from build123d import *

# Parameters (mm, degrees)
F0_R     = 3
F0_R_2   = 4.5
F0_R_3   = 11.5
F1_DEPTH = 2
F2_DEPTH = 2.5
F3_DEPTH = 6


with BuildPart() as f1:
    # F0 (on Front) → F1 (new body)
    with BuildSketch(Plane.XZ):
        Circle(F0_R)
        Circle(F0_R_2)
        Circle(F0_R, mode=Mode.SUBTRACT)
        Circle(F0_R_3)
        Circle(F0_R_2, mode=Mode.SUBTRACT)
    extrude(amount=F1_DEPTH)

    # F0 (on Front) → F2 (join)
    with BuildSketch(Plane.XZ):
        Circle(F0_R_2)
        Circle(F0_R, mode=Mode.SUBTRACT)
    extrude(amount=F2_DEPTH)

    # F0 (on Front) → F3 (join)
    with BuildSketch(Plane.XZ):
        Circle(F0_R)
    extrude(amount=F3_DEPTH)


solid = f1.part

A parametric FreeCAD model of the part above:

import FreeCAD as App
import Part
import Sketcher

V = App.Vector

doc = App.newDocument("Part")
body = doc.addObject("PartDesign::Body", "Body")

# Sketch on XZ plane
sketch1 = doc.addObject("Sketcher::SketchObject", "Sketch")
body.addObject(sketch1)
sketch1.AttachmentSupport = (doc.XZ_Plane, [""])
sketch1.MapMode = "FlatFace"
sketch1.addGeometry(Part.Circle(V(0, 0, 0), V(0, 0, 1), 11.5), False)
sketch1.addGeometry(Part.Circle(V(0, 0, 0), V(0, 0, 1), 4.5), False)
sketch1.addConstraint(Sketcher.Constraint("Coincident", 0, 3, -1, 1))
sketch1.addConstraint(Sketcher.Constraint("Coincident", 1, 3, -1, 1))
sketch1.addConstraint(Sketcher.Constraint("Diameter", 0, 23.0))
sketch1.addConstraint(Sketcher.Constraint("Diameter", 1, 9.0))
pad1 = doc.addObject("PartDesign::Pad", "Pad")
body.addObject(pad1)
pad1.Profile = sketch1
pad1.Length = 2

# Sketch on XZ plane
sketch2 = doc.addObject("Sketcher::SketchObject", "Sketch001")
body.addObject(sketch2)
sketch2.AttachmentSupport = (doc.XZ_Plane, [""])
sketch2.MapMode = "FlatFace"
sketch2.addGeometry(Part.Circle(V(0, 0, 0), V(0, 0, 1), 4.5), False)
sketch2.addGeometry(Part.Circle(V(0, 0, 0), V(0, 0, 1), 3), False)
sketch2.addConstraint(Sketcher.Constraint("Coincident", 0, 3, -1, 1))
sketch2.addConstraint(Sketcher.Constraint("Coincident", 1, 3, -1, 1))
sketch2.addConstraint(Sketcher.Constraint("Diameter", 0, 9.0))
sketch2.addConstraint(Sketcher.Constraint("Diameter", 1, 6.0))
pad2 = doc.addObject("PartDesign::Pad", "Pad001")
body.addObject(pad2)
pad2.Profile = sketch2
pad2.Length = 2.5

# Sketch on XZ plane
sketch3 = doc.addObject("Sketcher::SketchObject", "Sketch002")
body.addObject(sketch3)
sketch3.AttachmentSupport = (doc.XZ_Plane, [""])
sketch3.MapMode = "FlatFace"
sketch3.addGeometry(Part.Circle(V(0, 0, 0), V(0, 0, 1), 3), False)
sketch3.addConstraint(Sketcher.Constraint("Coincident", 0, 3, -1, 1))
sketch3.addConstraint(Sketcher.Constraint("Diameter", 0, 6.0))
pad3 = doc.addObject("PartDesign::Pad", "Pad002")
body.addObject(pad3)
pad3.Profile = sketch3
pad3.Length = 6

doc.recompute()
